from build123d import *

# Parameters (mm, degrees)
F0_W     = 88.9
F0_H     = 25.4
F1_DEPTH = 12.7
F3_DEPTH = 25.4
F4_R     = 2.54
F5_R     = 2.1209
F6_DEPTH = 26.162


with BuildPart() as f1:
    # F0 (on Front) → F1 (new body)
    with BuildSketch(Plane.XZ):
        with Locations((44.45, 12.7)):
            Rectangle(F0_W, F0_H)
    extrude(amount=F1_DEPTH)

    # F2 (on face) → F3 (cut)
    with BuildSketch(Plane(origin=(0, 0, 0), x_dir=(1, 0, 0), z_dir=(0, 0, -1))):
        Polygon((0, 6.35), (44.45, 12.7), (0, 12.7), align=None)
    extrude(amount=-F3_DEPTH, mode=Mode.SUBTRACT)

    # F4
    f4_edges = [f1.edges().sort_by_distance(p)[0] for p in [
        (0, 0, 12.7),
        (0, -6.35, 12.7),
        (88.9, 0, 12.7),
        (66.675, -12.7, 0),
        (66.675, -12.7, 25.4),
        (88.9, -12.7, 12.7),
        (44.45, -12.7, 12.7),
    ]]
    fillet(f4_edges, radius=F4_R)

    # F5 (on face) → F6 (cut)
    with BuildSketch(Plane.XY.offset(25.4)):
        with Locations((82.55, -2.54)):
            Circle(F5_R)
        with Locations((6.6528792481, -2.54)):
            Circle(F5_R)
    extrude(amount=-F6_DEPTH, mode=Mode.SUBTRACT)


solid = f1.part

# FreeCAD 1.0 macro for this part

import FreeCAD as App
import Part
import Sketcher
Q = App.Units.Quantity


def edges_at(feature, points):
    """Names of the edges that pass closest to the given points."""
    edges = feature.Shape.Edges
    near = lambda p: min(range(len(edges)), key=lambda i: edges[i].distToShape(Part.Vertex(*p))[0])
    return sorted({f"Edge{near(p) + 1}" for p in points})

doc = App.newDocument("Part")
params = doc.addObject("Spreadsheet::Sheet", "Params")
for row, (alias, value) in enumerate([
    ("sketch1_height", "1 in"),
    ("sketch1_width", "3.5 in"),
    ("pad1_length", "0.5 in"),
    ("sketch2_width", "1.75 in"),
    ("sketch2_height", "0.25 in"),
    ("pocket1_length", "1 in"),
    ("fillet_radius", "0.1 in"),
    ("sketch3_diameter", "0.167 in"),
    ("pocket2_length", "1.03 in"),
], start=1):
    params.set(f"A{row}", alias)
    params.set(f"B{row}", "=" + value)
    params.setAlias(f"B{row}", alias)

body = doc.addObject("PartDesign::Body", "Body")

# Sketch on XZ plane
sketch1 = body.newObject("Sketcher::SketchObject", "Sketch")
sketch1.AttachmentSupport = (doc.getObject("XZ_Plane"), [""])
sketch1.MapMode = "FlatFace"
sketch1.addGeometry(Part.LineSegment(App.Vector(0, 25.4, 0), App.Vector(0, 0, 0)), False)
sketch1.addGeometry(Part.LineSegment(App.Vector(0, 0, 0), App.Vector(88.9, 0, 0)), False)
sketch1.addGeometry(Part.LineSegment(App.Vector(88.9, 0, 0), App.Vector(88.9, 25.4, 0)), False)
sketch1.addGeometry(Part.LineSegment(App.Vector(88.9, 25.4, 0), App.Vector(0, 25.4, 0)), False)
sketch1.addConstraint(Sketcher.Constraint("Coincident", 0, 2, 1, 1))
sketch1.addConstraint(Sketcher.Constraint("Coincident", 1, 2, 2, 1))
sketch1.addConstraint(Sketcher.Constraint("Coincident", 2, 2, 3, 1))
sketch1.addConstraint(Sketcher.Constraint("Coincident", 3, 2, 0, 1))
sketch1.addConstraint(Sketcher.Constraint("Vertical", 0))
sketch1.addConstraint(Sketcher.Constraint("Horizontal", 1))
sketch1.addConstraint(Sketcher.Constraint("Vertical", 2))
sketch1.addConstraint(Sketcher.Constraint("Horizontal", 3))
sketch1.addConstraint(Sketcher.Constraint("Coincident", 0, 2, -1, 1))
sketch1.addConstraint(Sketcher.Constraint("DistanceY", 0, 2, 0, 1, Q("1 in")))
sketch1.addConstraint(Sketcher.Constraint("DistanceX", 1, 1, 1, 2, Q("3.5 in")))
sketch1.setExpression("Constraints[9]", "Params.sketch1_height")
sketch1.setExpression("Constraints[10]", "Params.sketch1_width")
pad1 = body.newObject("PartDesign::Pad", "Pad")
pad1.Profile = sketch1
pad1.setExpression("Length", "Params.pad1_length")

# Sketch on XY plane
sketch2 = body.newObject("Sketcher::SketchObject", "Sketch001")
sketch2.AttachmentSupport = (doc.getObject("XY_Plane"), [""])
sketch2.MapMode = "FlatFace"
sketch2.addGeometry(Part.LineSegment(App.Vector(0, -6.35, 0), App.Vector(44.45, -12.7, 0)), False)
sketch2.addGeometry(Part.LineSegment(App.Vector(44.45, -12.7, 0), App.Vector(0, -12.7, 0)), False)
sketch2.addGeometry(Part.LineSegment(App.Vector(0, -12.7, 0), App.Vector(0, -6.35, 0)), False)
sketch2.addConstraint(Sketcher.Constraint("Coincident", 0, 2, 1, 1))
sketch2.addConstraint(Sketcher.Constraint("Coincident", 1, 2, 2, 1))
sketch2.addConstraint(Sketcher.Constraint("Coincident", 2, 2, 0, 1))
sketch2.addConstraint(Sketcher.Constraint("Horizontal", 1))
sketch2.addConstraint(Sketcher.Constraint("Vertical", 2))
sketch2.addConstraint(Sketcher.Constraint("PointOnObject", 1, 2, -2))
sketch2.addConstraint(Sketcher.Constraint("DistanceX", 1, 2, 1, 1, Q("1.75 in")))
sketch2.addConstraint(Sketcher.Constraint("DistanceY", 2, 1, 2, 2, Q("0.25 in")))
sketch2.addConstraint(Sketcher.Constraint("DistanceY", 0, 2, -1, 1, Q("0.5 in")))
sketch2.setExpression("Constraints[6]", "Params.sketch2_width")
sketch2.setExpression("Constraints[7]", "Params.sketch2_height")
pocket1 = body.newObject("PartDesign::Pocket", "Pocket")
pocket1.Profile = sketch2
pocket1.setExpression("Length", "Params.pocket1_length")
pocket1.Reversed = True
doc.recompute()

fillet = body.newObject("PartDesign::Fillet", "Fillet")
fillet.Base = (pocket1, edges_at(pocket1, [
    (0, 0, 12.7),
    (0, -6.35, 12.7),
    (88.9, 0, 12.7),
    (66.675, -12.7, 0),
    (66.675, -12.7, 25.4),
    (88.9, -12.7, 12.7),
    (44.45, -12.7, 12.7),
]))
fillet.setExpression("Radius", "Params.fillet_radius")

# Sketch on XY plane
sketch3 = body.newObject("Sketcher::SketchObject", "Sketch002")
sketch3.AttachmentSupport = (doc.getObject("XY_Plane"), [""])
sketch3.MapMode = "FlatFace"
sketch3.AttachmentOffset = App.Placement(App.Vector(0, 0, 1 * 25.4), App.Rotation())
sketch3.addGeometry(Part.Circle(App.Vector(82.55, -2.54, 0), App.Vector(0, 0, 1), 2.1209), False)
sketch3.addGeometry(Part.Circle(App.Vector(6.652879, -2.54, 0), App.Vector(0, 0, 1), 2.1209), False)
sketch3.addConstraint(Sketcher.Constraint("Equal", 0, 1))
sketch3.addConstraint(Sketcher.Constraint("Horizontal", 0, 3, 1, 3))
sketch3.addConstraint(Sketcher.Constraint("Diameter", 0, Q("0.167 in")))
sketch3.addConstraint(Sketcher.Constraint("DistanceY", 0, 3, -1, 1, Q("0.1 in")))
sketch3.addConstraint(Sketcher.Constraint("DistanceX", -1, 1, 0, 3, Q("3.25 in")))
sketch3.addConstraint(Sketcher.Constraint("DistanceX", -1, 1, 1, 3, 6.652879))
sketch3.setExpression("Constraints[2]", "Params.sketch3_diameter")
pocket2 = body.newObject("PartDesign::Pocket", "Pocket001")
pocket2.Profile = sketch3
pocket2.setExpression("Length", "Params.pocket2_length")

doc.recompute()
